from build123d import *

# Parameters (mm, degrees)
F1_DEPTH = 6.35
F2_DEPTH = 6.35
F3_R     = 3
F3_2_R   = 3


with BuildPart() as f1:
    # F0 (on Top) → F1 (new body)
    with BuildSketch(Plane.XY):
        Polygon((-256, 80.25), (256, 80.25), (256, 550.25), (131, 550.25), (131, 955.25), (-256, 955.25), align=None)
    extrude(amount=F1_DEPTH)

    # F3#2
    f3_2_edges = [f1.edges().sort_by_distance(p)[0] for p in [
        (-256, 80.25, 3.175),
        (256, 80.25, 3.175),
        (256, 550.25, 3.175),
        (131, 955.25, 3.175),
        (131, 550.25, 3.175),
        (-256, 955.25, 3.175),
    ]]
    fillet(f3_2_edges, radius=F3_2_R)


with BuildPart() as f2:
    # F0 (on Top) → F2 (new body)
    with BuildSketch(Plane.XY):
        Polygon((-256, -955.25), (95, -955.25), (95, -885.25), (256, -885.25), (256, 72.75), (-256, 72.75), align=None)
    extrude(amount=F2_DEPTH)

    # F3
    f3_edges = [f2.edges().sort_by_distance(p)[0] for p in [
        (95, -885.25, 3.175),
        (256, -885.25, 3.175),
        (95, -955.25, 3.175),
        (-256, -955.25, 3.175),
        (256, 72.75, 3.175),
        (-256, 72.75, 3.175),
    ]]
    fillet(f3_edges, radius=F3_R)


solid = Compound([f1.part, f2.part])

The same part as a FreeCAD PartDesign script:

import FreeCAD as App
import Part
import Sketcher

V = App.Vector
Q = App.Units.Quantity


def edges_at(feature, points):
    """Names of the edges that pass closest to the given points."""
    edges = feature.Shape.Edges
    near = lambda p: min(range(len(edges)), key=lambda i: edges[i].distToShape(Part.Vertex(*p))[0])
    return sorted({f"Edge{near(p) + 1}" for p in points})


def add_polygon(sketch, points):
    """Adds a closed chain of lines whose ends are joined by coincident constraints."""
    first, n = sketch.GeometryCount, len(points)
    for a, b in zip(points, points[1:] + points[:1]):
        sketch.addGeometry(Part.LineSegment(App.Vector(*a, 0), App.Vector(*b, 0)), False)
    for i in range(n):
        sketch.addConstraint(Sketcher.Constraint("Coincident", first + i, 2, first + (i + 1) % n, 1))

doc = App.newDocument("Part")
body = doc.addObject("PartDesign::Body", "Body")

sketch1 = body.newObject("Sketcher::SketchObject", "Sketch")
sketch1.AttachmentSupport = (doc.getObject("XY_Plane"), [""])
sketch1.MapMode = "FlatFace"
add_polygon(sketch1, [(-256, 80), (256, 80), (256, 550), (131, 550), (131, 955), (-256, 955)])
sketch1.addConstraint([
    Sketcher.Constraint("Horizontal", 0),
    Sketcher.Constraint("Vertical", 1),
    Sketcher.Constraint("Horizontal", 2),
    Sketcher.Constraint("Vertical", 3),
    Sketcher.Constraint("Horizontal", 4),
    Sketcher.Constraint("Vertical", 5),
    Sketcher.Constraint("DistanceX", 0, 1, 0, 2, Q("512 mm")),
    Sketcher.Constraint("DistanceX", 2, 2, 2, 1, Q("125 mm")),
    Sketcher.Constraint("DistanceY", 1, 1, 1, 2, Q("470 mm")),
    Sketcher.Constraint("DistanceY", 3, 1, 3, 2, Q("405 mm")),
    Sketcher.Constraint("DistanceX", -1, 1, 0, 2, Q("256 mm")),
    Sketcher.Constraint("DistanceY", -1, 1, 0, 2, Q("80.25 mm")),
])
pad1 = body.newObject("PartDesign::Pad", "Pad")
pad1.Profile = sketch1
pad1.Length = 6.35
doc.recompute()

fillet = body.newObject("PartDesign::Fillet", "Fillet")
fillet.Base = (pad1, edges_at(pad1, [
    (-256, 80.25, 3.175),
    (256, 80.25, 3.175),
    (256, 550.25, 3.175),
    (131, 955.25, 3.175),
    (131, 550.25, 3.175),
    (-256, 955.25, 3.175),
]))
fillet.Radius = 3
body2 = doc.addObject("PartDesign::Body", "Body001")

sketch2 = body2.newObject("Sketcher::SketchObject", "Sketch001")
sketch2.AttachmentSupport = (doc.getObject("XY_Plane001"), [""])
sketch2.MapMode = "FlatFace"
add_polygon(sketch2, [(-256, -955), (95, -955), (95, -885), (256, -885), (256, 73), (-256, 73)])
sketch2.addConstraint([
    Sketcher.Constraint("Horizontal", 0),
    Sketcher.Constraint("Vertical", 1),
    Sketcher.Constraint("Horizontal", 2),
    Sketcher.Constraint("Vertical", 3),
    Sketcher.Constraint("Horizontal", 4),
    Sketcher.Constraint("Vertical", 5),
    Sketcher.Constraint("DistanceX", 0, 1, 0, 2, Q("351 mm")),
    Sketcher.Constraint("DistanceX", 2, 1, 2, 2, Q("161 mm")),
    Sketcher.Constraint("DistanceY", 1, 1, 1, 2, Q("70 mm")),
    Sketcher.Constraint("DistanceY", 3, 1, 3, 2, Q("958 mm")),
    Sketcher.Constraint("DistanceX", -1, 1, 0, 2, Q("95 mm")),
    Sketcher.Constraint("DistanceY", 0, 2, -1, 1, Q("955.25 mm")),
])
pad2 = body2.newObject("PartDesign::Pad", "Pad001")
pad2.Profile = sketch2
pad2.Length = 6.35
doc.recompute()

fillet2 = body2.newObject("PartDesign::Fillet", "Fillet001")
fillet2.Base = (pad2, edges_at(pad2, [
    (95, -885.25, 3.175),
    (256, -885.25, 3.175),
    (95, -955.25, 3.175),
    (-256, -955.25, 3.175),
    (256, 72.75, 3.175),
    (-256, 72.75, 3.175),
]))
fillet2.Radius = 3

doc.recompute()
